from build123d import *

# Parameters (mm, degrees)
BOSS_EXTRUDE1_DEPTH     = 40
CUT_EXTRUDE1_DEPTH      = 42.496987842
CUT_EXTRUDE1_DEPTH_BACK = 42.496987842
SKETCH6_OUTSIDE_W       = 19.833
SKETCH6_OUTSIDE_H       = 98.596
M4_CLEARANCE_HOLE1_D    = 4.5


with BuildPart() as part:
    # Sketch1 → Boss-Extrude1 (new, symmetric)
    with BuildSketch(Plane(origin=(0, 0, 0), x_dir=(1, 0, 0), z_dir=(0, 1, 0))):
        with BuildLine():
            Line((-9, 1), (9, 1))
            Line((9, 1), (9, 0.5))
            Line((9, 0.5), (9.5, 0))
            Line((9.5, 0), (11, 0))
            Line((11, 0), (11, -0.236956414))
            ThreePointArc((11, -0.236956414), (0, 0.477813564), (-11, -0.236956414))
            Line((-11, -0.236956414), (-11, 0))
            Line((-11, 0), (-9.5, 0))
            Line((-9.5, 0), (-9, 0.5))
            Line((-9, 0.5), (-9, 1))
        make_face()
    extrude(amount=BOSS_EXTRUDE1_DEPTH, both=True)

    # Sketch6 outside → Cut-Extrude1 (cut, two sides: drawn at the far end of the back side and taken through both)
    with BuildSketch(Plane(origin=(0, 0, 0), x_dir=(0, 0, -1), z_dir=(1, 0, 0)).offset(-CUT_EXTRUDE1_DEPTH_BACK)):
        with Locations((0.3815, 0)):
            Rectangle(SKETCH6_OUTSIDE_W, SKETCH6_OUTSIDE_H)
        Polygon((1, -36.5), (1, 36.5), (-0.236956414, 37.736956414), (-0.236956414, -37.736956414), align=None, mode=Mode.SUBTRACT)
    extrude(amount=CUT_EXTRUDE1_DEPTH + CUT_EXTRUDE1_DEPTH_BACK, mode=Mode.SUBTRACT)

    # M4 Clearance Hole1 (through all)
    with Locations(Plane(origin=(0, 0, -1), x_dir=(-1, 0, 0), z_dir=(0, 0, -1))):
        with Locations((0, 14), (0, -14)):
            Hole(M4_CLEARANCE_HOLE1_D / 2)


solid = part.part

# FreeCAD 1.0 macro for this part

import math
import FreeCAD as App
import Part
import Sketcher

V = App.Vector

doc = App.newDocument("Part")
params = doc.addObject("Spreadsheet::Sheet", "Params")
for row, (alias, value) in enumerate([
    ("sketch1_radius", "85 mm"),
    ("sketch1_width", "18 mm"),
    ("sketch1_width2", "1.5 mm"),
    ("sketch1_height", "0.5 mm"),
    ("pad1_length", "80 mm"),
    ("sketch2_width", "73 mm"),
    ("sketch3_diameter", "4.5 mm"),
    ("hole_diameter", "4.5 mm"),
], start=1):
    params.set(f"A{row}", alias)
    params.set(f"B{row}", "=" + value)
    params.setAlias(f"B{row}", alias)

body = doc.addObject("PartDesign::Body", "Body")

# Sketch on XZ plane
sketch1 = body.newObject("Sketcher::SketchObject", "Sketch")
sketch1.AttachmentSupport = (doc.getObject("XZ_Plane"), [""])
sketch1.MapMode = "FlatFace"
sketch1.addGeometry([
    Part.LineSegment(V(9, -1, 0), V(-9, -1, 0)),  # 0
    Part.LineSegment(V(-9, -1, 0), V(-9, -0.5, 0)),  # 1
    Part.LineSegment(V(-9, -0.5, 0), V(-9.5, 0, 0)),  # 2
    Part.LineSegment(V(-9.5, 0, 0), V(-11, 0, 0)),  # 3
    Part.LineSegment(V(-11, 0, 0), V(-11, 0.24, 0)),  # 4
    Part.ArcOfCircle(Part.Circle(V(0, 84.52, 0), V(0, 0, 1), 85), math.radians(-97.44), math.radians(-82.56)),  # 5
    Part.LineSegment(V(11, 0.24, 0), V(11, 0, 0)),  # 6
    Part.LineSegment(V(11, 0, 0), V(9.5, 0, 0)),  # 7
    Part.LineSegment(V(9.5, 0, 0), V(9, -0.5, 0)),  # 8
    Part.LineSegment(V(9, -0.5, 0), V(9, -1, 0)),  # 9
], False)
sketch1.addConstraint([
    Sketcher.Constraint("Coincident", 0, 2, 1, 1),
    Sketcher.Constraint("Coincident", 1, 2, 2, 1),
    Sketcher.Constraint("Coincident", 2, 2, 3, 1),
    Sketcher.Constraint("Coincident", 3, 2, 4, 1),
    Sketcher.Constraint("Coincident", 4, 2, 5, 1),
    Sketcher.Constraint("Coincident", 5, 2, 6, 1),
    Sketcher.Constraint("Coincident", 6, 2, 7, 1),
    Sketcher.Constraint("Coincident", 7, 2, 8, 1),
    Sketcher.Constraint("Coincident", 8, 2, 9, 1),
    Sketcher.Constraint("Coincident", 9, 2, 0, 1),
    Sketcher.Constraint("Horizontal", 0),
    Sketcher.Constraint("Vertical", 1),
    Sketcher.Constraint("Horizontal", 3),
    Sketcher.Constraint("Vertical", 4),
    Sketcher.Constraint("Vertical", 6),
    Sketcher.Constraint("Horizontal", 7),
    Sketcher.Constraint("Vertical", 9),
    Sketcher.Constraint("Symmetric", 3, 2, 6, 2, -1, 1),
    Sketcher.Constraint("Symmetric", 2, 2, 7, 2, -2),
    Sketcher.Constraint("Symmetric", 1, 2, 8, 2, -2),
    Sketcher.Constraint("PointOnObject", 5, 3, -2),
    Sketcher.Constraint("Perpendicular", 2, 8),
    Sketcher.Constraint("Radius", 5, 85.0),
    Sketcher.Constraint("DistanceX", 0, 2, 0, 1, 18.0),
    Sketcher.Constraint("DistanceX", 3, 2, 3, 1, 1.5),
    Sketcher.Constraint("DistanceY", 1, 1, 1, 2, 0.5),
    Sketcher.Constraint("DistanceY", 0, 2, -1, 1, 1.0),
    Sketcher.Constraint("DistanceY", 4, 1, 4, 2, 0.236956),
])
sketch1.setExpression("Constraints[22]", "Params.sketch1_radius")
sketch1.setExpression("Constraints[23]", "Params.sketch1_width")
sketch1.setExpression("Constraints[24]", "Params.sketch1_width2")
sketch1.setExpression("Constraints[25]", "Params.sketch1_height")
pad1 = body.newObject("PartDesign::Pad", "Pad")
pad1.Profile = sketch1
pad1.setExpression("Length", "Params.pad1_length")
pad1.Midplane = True

# Sketch on YZ plane
sketch2 = body.newObject("Sketcher::SketchObject", "Sketch001")
sketch2.AttachmentSupport = (doc.getObject("YZ_Plane"), [""])
sketch2.MapMode = "FlatFace"
sketch2.addGeometry([
    Part.LineSegment(V(49.3, 9.5, 0), V(-49.3, 9.5, 0)),  # 0
    Part.LineSegment(V(-49.3, 9.5, 0), V(-49.3, -10.3, 0)),  # 1
    Part.LineSegment(V(-49.3, -10.3, 0), V(49.3, -10.3, 0)),  # 2
    Part.LineSegment(V(49.3, -10.3, 0), V(49.3, 9.5, 0)),  # 3
    Part.LineSegment(V(36.5, -1, 0), V(-36.5, -1, 0)),  # 4
    Part.LineSegment(V(-36.5, -1, 0), V(-37.7, 0.2, 0)),  # 5
    Part.LineSegment(V(-37.7, 0.2, 0), V(37.7, 0.2, 0)),  # 6
    Part.LineSegment(V(37.7, 0.2, 0), V(36.5, -1, 0)),  # 7
], False)
sketch2.addConstraint([
    Sketcher.Constraint("Coincident", 0, 2, 1, 1),
    Sketcher.Constraint("Coincident", 1, 2, 2, 1),
    Sketcher.Constraint("Coincident", 2, 2, 3, 1),
    Sketcher.Constraint("Coincident", 3, 2, 0, 1),
    Sketcher.Constraint("Coincident", 4, 2, 5, 1),
    Sketcher.Constraint("Coincident", 5, 2, 6, 1),
    Sketcher.Constraint("Coincident", 6, 2, 7, 1),
    Sketcher.Constraint("Coincident", 7, 2, 4, 1),
    Sketcher.Constraint("Horizontal", 0),
    Sketcher.Constraint("Vertical", 1),
    Sketcher.Constraint("Horizontal", 2),
    Sketcher.Constraint("Vertical", 3),
    Sketcher.Constraint("Horizontal", 4),
    Sketcher.Constraint("Horizontal", 6),
    Sketcher.Constraint("Perpendicular", 5, 7),
    Sketcher.Constraint("Equal", 5, 7),
    Sketcher.Constraint("DistanceX", 4, 2, 4, 1, 73.0),
    Sketcher.Constraint("DistanceY", 4, 2, -1, 1, 1.0),
    Sketcher.Constraint("DistanceX", 4, 2, -1, 1, 36.5),
    Sketcher.Constraint("DistanceX", 0, 2, 0, 1, 98.596),
    Sketcher.Constraint("DistanceY", 1, 2, 1, 1, 19.833),
    Sketcher.Constraint("DistanceX", 0, 2, -1, 1, 49.298),
    Sketcher.Constraint("DistanceY", -1, 1, 0, 2, 9.535),
    Sketcher.Constraint("Distance", 5, 1.749321),
])
sketch2.setExpression("Constraints[16]", "Params.sketch2_width")
pocket1 = body.newObject("PartDesign::Pocket", "Pocket")
pocket1.Profile = sketch2
pocket1.Type = "ThroughAll"
pocket1.Midplane = True

# Sketch on XY plane
sketch3 = body.newObject("Sketcher::SketchObject", "Sketch002")
sketch3.AttachmentSupport = (doc.getObject("XY_Plane"), [""])
sketch3.MapMode = "FlatFace"
sketch3.AttachmentOffset = App.Placement(V(0, 0, -1), App.Rotation())
sketch3.addGeometry([
    Part.Circle(V(0, 14, 0), V(0, 0, 1), 2.2),
    Part.Circle(V(0, -14, 0), V(0, 0, 1), 2.2),
], False)
sketch3.addConstraint([
    Sketcher.Constraint("Equal", 0, 1),
    Sketcher.Constraint("Symmetric", 0, 3, 1, 3, -1, 1),
    Sketcher.Constraint("PointOnObject", 0, 3, -2),
    Sketcher.Constraint("Diameter", 0, 4.5),
    Sketcher.Constraint("DistanceY", -1, 1, 0, 3, 14.0),
])
sketch3.setExpression("Constraints[3]", "Params.sketch3_diameter")
doc.recompute()
hole = body.newObject("PartDesign::Hole", "Hole")
hole.Profile = sketch3
hole.ThreadType = "None"
hole.setExpression("Diameter", "Params.hole_diameter")
hole.DepthType = "ThroughAll"
hole.Reversed = True

doc.recompute()
